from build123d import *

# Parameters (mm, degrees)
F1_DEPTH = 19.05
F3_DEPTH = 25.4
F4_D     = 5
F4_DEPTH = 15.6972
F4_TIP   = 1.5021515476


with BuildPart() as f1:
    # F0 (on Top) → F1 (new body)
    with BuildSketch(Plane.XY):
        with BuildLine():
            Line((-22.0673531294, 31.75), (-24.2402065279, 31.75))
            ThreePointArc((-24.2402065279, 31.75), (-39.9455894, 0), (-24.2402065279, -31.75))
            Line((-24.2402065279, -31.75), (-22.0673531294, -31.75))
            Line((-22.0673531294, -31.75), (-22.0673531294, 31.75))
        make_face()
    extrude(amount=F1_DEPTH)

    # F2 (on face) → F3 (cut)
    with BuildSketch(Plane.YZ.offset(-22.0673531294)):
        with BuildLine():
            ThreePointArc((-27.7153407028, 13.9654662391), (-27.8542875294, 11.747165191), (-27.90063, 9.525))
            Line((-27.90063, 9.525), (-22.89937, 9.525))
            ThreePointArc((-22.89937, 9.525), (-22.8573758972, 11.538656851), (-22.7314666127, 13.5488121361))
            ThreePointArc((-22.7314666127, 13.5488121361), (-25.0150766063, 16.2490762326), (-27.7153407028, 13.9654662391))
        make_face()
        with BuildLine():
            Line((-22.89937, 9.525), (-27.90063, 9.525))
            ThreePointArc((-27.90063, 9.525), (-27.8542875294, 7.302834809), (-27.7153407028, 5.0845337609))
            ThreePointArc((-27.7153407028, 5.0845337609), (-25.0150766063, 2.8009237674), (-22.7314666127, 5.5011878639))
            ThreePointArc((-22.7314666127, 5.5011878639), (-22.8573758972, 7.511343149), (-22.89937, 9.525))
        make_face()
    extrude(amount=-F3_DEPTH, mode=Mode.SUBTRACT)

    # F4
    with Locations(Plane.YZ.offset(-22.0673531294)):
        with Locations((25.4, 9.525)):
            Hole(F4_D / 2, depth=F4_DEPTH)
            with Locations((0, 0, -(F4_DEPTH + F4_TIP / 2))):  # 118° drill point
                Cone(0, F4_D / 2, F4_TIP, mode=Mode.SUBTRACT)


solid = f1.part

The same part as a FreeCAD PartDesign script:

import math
import FreeCAD as App
import Part
import Sketcher
from FreeCAD import Vector
Q = App.Units.Quantity

doc = App.newDocument("Part")
body = doc.addObject("PartDesign::Body", "Body")

sketch1 = body.newObject("Sketcher::SketchObject", "Sketch")
sketch1.AttachmentSupport = (doc.getObject("XY_Plane"), [""])
sketch1.MapMode = "FlatFace"
sketch1.addGeometry([
    Part.LineSegment(Vector(-22.1, 31.8, 0), Vector(-24.2, 31.8, 0)),
    Part.ArcOfCircle(Part.Circle(Vector(0, 0, 0), Vector(0, 0, 1), 39.9), math.radians(127), math.radians(233)),
    Part.LineSegment(Vector(-24.2, -31.8, 0), Vector(-22.1, -31.8, 0)),
    Part.LineSegment(Vector(-22.1, -31.8, 0), Vector(-22.1, 31.8, 0)),
], False)
sketch1.addConstraint([
    Sketcher.Constraint("Coincident", 0, 2, 1, 1),
    Sketcher.Constraint("Coincident", 1, 2, 2, 1),
    Sketcher.Constraint("Coincident", 2, 2, 3, 1),
    Sketcher.Constraint("Coincident", 3, 2, 0, 1),
    Sketcher.Constraint("Horizontal", 0),
    Sketcher.Constraint("Horizontal", 2),
    Sketcher.Constraint("Vertical", 3),
    Sketcher.Constraint("Coincident", 1, 3, -1, 1),
    Sketcher.Constraint("Vertical", 0, 2, 1, 2),
    Sketcher.Constraint("DistanceY", 3, 1, 3, 2, Q("2.5 in")),
    Sketcher.Constraint("Radius", 1, Q("39.945589 mm")),
    Sketcher.Constraint("DistanceX", 0, 2, 0, 1, Q("2.172853 mm")),
])
pad1 = body.newObject("PartDesign::Pad", "Pad")
pad1.Profile = sketch1
pad1.Length = Q("0.75 in")

sketch2 = body.newObject("Sketcher::SketchObject", "Sketch001")
sketch2.AttachmentSupport = (doc.getObject("YZ_Plane"), [""])
sketch2.MapMode = "FlatFace"
sketch2.AttachmentOffset = App.Placement(Vector(0, 0, -22.067353), App.Rotation())
sketch2.addGeometry([
    Part.ArcOfCircle(Part.Circle(Vector(25.4, 9.5, 0), Vector(0, 0, 1), 53.3), math.radians(175.22), math.radians(180)),
    Part.ArcOfCircle(Part.Circle(Vector(25.4, 9.5, 0), Vector(0, 0, 1), 53.3), math.radians(180), math.radians(184.78)),
    Part.ArcOfCircle(Part.Circle(Vector(-25.2, 5.3, 0), Vector(0, 0, 1), 2.5), math.radians(-175), math.radians(5)),
    Part.ArcOfCircle(Part.Circle(Vector(25.4, 9.5, 0), Vector(0, 0, 1), 48.3), math.radians(180), math.radians(184.78)),
    Part.ArcOfCircle(Part.Circle(Vector(25.4, 9.5, 0), Vector(0, 0, 1), 48.3), math.radians(175.22), math.radians(180)),
    Part.ArcOfCircle(Part.Circle(Vector(-25.2, 13.8, 0), Vector(0, 0, 1), 2.5), math.radians(-5), math.radians(175)),
], False)
sketch2.addConstraint([
    Sketcher.Constraint("Tangent", 0, 2, 1, 1),
    Sketcher.Constraint("Tangent", 1, 2, 2, 1),
    Sketcher.Constraint("Tangent", 2, 2, 3, 2),
    Sketcher.Constraint("Tangent", 3, 1, 4, 2),
    Sketcher.Constraint("Tangent", 4, 1, 5, 1),
    Sketcher.Constraint("Tangent", 5, 2, 0, 1),
    Sketcher.Constraint("Coincident", 3, 3, 0, 3),
    Sketcher.Constraint("Equal", 0, 1),
    Sketcher.Constraint("Equal", 3, 4),
    Sketcher.Constraint("Horizontal", 4, 3, 0, 2),
    Sketcher.Constraint("Horizontal", 0, 2, 3, 1),
    Sketcher.Constraint("Vertical", 2, 3, 5, 3),
    Sketcher.Constraint("DistanceX", -1, 1, 0, 3, Q("1 in")),
    Sketcher.Constraint("DistanceY", -1, 1, 0, 3, Q("0.375 in")),
    Sketcher.Constraint("Radius", 0, Q("53.30063 mm")),
    Sketcher.Constraint("Radius", 2, Q("2.50063 mm")),
    Sketcher.Constraint("DistanceY", -1, 1, 2, 3, Q("5.292861 mm")),
])
pocket1 = body.newObject("PartDesign::Pocket", "Pocket")
pocket1.Profile = sketch2
pocket1.Length = Q("1 in")

sketch3 = body.newObject("Sketcher::SketchObject", "Sketch002")
sketch3.AttachmentSupport = (doc.getObject("YZ_Plane"), [""])
sketch3.MapMode = "FlatFace"
sketch3.AttachmentOffset = App.Placement(Vector(0, 0, -22.067353), App.Rotation())
sketch3.addGeometry(Part.Circle(Vector(25.4, 9.5, 0), Vector(0, 0, 1), 2.5), False)
sketch3.addConstraint([
    Sketcher.Constraint("DistanceX", -1, 1, 0, 3, Q("1 in")),
    Sketcher.Constraint("Diameter", 0, Q("5 mm")),
    Sketcher.Constraint("DistanceY", -1, 1, 0, 3, Q("0.375 in")),
])
doc.recompute()
hole = body.newObject("PartDesign::Hole", "Hole")
hole.Profile = sketch3
hole.ThreadType = "None"
hole.Diameter = 5
hole.DepthType = "Dimension"
hole.Depth = Q("0.618 in")
hole.DrillPoint = "Angled"
hole.DrillPointAngle = 118

doc.recompute()
